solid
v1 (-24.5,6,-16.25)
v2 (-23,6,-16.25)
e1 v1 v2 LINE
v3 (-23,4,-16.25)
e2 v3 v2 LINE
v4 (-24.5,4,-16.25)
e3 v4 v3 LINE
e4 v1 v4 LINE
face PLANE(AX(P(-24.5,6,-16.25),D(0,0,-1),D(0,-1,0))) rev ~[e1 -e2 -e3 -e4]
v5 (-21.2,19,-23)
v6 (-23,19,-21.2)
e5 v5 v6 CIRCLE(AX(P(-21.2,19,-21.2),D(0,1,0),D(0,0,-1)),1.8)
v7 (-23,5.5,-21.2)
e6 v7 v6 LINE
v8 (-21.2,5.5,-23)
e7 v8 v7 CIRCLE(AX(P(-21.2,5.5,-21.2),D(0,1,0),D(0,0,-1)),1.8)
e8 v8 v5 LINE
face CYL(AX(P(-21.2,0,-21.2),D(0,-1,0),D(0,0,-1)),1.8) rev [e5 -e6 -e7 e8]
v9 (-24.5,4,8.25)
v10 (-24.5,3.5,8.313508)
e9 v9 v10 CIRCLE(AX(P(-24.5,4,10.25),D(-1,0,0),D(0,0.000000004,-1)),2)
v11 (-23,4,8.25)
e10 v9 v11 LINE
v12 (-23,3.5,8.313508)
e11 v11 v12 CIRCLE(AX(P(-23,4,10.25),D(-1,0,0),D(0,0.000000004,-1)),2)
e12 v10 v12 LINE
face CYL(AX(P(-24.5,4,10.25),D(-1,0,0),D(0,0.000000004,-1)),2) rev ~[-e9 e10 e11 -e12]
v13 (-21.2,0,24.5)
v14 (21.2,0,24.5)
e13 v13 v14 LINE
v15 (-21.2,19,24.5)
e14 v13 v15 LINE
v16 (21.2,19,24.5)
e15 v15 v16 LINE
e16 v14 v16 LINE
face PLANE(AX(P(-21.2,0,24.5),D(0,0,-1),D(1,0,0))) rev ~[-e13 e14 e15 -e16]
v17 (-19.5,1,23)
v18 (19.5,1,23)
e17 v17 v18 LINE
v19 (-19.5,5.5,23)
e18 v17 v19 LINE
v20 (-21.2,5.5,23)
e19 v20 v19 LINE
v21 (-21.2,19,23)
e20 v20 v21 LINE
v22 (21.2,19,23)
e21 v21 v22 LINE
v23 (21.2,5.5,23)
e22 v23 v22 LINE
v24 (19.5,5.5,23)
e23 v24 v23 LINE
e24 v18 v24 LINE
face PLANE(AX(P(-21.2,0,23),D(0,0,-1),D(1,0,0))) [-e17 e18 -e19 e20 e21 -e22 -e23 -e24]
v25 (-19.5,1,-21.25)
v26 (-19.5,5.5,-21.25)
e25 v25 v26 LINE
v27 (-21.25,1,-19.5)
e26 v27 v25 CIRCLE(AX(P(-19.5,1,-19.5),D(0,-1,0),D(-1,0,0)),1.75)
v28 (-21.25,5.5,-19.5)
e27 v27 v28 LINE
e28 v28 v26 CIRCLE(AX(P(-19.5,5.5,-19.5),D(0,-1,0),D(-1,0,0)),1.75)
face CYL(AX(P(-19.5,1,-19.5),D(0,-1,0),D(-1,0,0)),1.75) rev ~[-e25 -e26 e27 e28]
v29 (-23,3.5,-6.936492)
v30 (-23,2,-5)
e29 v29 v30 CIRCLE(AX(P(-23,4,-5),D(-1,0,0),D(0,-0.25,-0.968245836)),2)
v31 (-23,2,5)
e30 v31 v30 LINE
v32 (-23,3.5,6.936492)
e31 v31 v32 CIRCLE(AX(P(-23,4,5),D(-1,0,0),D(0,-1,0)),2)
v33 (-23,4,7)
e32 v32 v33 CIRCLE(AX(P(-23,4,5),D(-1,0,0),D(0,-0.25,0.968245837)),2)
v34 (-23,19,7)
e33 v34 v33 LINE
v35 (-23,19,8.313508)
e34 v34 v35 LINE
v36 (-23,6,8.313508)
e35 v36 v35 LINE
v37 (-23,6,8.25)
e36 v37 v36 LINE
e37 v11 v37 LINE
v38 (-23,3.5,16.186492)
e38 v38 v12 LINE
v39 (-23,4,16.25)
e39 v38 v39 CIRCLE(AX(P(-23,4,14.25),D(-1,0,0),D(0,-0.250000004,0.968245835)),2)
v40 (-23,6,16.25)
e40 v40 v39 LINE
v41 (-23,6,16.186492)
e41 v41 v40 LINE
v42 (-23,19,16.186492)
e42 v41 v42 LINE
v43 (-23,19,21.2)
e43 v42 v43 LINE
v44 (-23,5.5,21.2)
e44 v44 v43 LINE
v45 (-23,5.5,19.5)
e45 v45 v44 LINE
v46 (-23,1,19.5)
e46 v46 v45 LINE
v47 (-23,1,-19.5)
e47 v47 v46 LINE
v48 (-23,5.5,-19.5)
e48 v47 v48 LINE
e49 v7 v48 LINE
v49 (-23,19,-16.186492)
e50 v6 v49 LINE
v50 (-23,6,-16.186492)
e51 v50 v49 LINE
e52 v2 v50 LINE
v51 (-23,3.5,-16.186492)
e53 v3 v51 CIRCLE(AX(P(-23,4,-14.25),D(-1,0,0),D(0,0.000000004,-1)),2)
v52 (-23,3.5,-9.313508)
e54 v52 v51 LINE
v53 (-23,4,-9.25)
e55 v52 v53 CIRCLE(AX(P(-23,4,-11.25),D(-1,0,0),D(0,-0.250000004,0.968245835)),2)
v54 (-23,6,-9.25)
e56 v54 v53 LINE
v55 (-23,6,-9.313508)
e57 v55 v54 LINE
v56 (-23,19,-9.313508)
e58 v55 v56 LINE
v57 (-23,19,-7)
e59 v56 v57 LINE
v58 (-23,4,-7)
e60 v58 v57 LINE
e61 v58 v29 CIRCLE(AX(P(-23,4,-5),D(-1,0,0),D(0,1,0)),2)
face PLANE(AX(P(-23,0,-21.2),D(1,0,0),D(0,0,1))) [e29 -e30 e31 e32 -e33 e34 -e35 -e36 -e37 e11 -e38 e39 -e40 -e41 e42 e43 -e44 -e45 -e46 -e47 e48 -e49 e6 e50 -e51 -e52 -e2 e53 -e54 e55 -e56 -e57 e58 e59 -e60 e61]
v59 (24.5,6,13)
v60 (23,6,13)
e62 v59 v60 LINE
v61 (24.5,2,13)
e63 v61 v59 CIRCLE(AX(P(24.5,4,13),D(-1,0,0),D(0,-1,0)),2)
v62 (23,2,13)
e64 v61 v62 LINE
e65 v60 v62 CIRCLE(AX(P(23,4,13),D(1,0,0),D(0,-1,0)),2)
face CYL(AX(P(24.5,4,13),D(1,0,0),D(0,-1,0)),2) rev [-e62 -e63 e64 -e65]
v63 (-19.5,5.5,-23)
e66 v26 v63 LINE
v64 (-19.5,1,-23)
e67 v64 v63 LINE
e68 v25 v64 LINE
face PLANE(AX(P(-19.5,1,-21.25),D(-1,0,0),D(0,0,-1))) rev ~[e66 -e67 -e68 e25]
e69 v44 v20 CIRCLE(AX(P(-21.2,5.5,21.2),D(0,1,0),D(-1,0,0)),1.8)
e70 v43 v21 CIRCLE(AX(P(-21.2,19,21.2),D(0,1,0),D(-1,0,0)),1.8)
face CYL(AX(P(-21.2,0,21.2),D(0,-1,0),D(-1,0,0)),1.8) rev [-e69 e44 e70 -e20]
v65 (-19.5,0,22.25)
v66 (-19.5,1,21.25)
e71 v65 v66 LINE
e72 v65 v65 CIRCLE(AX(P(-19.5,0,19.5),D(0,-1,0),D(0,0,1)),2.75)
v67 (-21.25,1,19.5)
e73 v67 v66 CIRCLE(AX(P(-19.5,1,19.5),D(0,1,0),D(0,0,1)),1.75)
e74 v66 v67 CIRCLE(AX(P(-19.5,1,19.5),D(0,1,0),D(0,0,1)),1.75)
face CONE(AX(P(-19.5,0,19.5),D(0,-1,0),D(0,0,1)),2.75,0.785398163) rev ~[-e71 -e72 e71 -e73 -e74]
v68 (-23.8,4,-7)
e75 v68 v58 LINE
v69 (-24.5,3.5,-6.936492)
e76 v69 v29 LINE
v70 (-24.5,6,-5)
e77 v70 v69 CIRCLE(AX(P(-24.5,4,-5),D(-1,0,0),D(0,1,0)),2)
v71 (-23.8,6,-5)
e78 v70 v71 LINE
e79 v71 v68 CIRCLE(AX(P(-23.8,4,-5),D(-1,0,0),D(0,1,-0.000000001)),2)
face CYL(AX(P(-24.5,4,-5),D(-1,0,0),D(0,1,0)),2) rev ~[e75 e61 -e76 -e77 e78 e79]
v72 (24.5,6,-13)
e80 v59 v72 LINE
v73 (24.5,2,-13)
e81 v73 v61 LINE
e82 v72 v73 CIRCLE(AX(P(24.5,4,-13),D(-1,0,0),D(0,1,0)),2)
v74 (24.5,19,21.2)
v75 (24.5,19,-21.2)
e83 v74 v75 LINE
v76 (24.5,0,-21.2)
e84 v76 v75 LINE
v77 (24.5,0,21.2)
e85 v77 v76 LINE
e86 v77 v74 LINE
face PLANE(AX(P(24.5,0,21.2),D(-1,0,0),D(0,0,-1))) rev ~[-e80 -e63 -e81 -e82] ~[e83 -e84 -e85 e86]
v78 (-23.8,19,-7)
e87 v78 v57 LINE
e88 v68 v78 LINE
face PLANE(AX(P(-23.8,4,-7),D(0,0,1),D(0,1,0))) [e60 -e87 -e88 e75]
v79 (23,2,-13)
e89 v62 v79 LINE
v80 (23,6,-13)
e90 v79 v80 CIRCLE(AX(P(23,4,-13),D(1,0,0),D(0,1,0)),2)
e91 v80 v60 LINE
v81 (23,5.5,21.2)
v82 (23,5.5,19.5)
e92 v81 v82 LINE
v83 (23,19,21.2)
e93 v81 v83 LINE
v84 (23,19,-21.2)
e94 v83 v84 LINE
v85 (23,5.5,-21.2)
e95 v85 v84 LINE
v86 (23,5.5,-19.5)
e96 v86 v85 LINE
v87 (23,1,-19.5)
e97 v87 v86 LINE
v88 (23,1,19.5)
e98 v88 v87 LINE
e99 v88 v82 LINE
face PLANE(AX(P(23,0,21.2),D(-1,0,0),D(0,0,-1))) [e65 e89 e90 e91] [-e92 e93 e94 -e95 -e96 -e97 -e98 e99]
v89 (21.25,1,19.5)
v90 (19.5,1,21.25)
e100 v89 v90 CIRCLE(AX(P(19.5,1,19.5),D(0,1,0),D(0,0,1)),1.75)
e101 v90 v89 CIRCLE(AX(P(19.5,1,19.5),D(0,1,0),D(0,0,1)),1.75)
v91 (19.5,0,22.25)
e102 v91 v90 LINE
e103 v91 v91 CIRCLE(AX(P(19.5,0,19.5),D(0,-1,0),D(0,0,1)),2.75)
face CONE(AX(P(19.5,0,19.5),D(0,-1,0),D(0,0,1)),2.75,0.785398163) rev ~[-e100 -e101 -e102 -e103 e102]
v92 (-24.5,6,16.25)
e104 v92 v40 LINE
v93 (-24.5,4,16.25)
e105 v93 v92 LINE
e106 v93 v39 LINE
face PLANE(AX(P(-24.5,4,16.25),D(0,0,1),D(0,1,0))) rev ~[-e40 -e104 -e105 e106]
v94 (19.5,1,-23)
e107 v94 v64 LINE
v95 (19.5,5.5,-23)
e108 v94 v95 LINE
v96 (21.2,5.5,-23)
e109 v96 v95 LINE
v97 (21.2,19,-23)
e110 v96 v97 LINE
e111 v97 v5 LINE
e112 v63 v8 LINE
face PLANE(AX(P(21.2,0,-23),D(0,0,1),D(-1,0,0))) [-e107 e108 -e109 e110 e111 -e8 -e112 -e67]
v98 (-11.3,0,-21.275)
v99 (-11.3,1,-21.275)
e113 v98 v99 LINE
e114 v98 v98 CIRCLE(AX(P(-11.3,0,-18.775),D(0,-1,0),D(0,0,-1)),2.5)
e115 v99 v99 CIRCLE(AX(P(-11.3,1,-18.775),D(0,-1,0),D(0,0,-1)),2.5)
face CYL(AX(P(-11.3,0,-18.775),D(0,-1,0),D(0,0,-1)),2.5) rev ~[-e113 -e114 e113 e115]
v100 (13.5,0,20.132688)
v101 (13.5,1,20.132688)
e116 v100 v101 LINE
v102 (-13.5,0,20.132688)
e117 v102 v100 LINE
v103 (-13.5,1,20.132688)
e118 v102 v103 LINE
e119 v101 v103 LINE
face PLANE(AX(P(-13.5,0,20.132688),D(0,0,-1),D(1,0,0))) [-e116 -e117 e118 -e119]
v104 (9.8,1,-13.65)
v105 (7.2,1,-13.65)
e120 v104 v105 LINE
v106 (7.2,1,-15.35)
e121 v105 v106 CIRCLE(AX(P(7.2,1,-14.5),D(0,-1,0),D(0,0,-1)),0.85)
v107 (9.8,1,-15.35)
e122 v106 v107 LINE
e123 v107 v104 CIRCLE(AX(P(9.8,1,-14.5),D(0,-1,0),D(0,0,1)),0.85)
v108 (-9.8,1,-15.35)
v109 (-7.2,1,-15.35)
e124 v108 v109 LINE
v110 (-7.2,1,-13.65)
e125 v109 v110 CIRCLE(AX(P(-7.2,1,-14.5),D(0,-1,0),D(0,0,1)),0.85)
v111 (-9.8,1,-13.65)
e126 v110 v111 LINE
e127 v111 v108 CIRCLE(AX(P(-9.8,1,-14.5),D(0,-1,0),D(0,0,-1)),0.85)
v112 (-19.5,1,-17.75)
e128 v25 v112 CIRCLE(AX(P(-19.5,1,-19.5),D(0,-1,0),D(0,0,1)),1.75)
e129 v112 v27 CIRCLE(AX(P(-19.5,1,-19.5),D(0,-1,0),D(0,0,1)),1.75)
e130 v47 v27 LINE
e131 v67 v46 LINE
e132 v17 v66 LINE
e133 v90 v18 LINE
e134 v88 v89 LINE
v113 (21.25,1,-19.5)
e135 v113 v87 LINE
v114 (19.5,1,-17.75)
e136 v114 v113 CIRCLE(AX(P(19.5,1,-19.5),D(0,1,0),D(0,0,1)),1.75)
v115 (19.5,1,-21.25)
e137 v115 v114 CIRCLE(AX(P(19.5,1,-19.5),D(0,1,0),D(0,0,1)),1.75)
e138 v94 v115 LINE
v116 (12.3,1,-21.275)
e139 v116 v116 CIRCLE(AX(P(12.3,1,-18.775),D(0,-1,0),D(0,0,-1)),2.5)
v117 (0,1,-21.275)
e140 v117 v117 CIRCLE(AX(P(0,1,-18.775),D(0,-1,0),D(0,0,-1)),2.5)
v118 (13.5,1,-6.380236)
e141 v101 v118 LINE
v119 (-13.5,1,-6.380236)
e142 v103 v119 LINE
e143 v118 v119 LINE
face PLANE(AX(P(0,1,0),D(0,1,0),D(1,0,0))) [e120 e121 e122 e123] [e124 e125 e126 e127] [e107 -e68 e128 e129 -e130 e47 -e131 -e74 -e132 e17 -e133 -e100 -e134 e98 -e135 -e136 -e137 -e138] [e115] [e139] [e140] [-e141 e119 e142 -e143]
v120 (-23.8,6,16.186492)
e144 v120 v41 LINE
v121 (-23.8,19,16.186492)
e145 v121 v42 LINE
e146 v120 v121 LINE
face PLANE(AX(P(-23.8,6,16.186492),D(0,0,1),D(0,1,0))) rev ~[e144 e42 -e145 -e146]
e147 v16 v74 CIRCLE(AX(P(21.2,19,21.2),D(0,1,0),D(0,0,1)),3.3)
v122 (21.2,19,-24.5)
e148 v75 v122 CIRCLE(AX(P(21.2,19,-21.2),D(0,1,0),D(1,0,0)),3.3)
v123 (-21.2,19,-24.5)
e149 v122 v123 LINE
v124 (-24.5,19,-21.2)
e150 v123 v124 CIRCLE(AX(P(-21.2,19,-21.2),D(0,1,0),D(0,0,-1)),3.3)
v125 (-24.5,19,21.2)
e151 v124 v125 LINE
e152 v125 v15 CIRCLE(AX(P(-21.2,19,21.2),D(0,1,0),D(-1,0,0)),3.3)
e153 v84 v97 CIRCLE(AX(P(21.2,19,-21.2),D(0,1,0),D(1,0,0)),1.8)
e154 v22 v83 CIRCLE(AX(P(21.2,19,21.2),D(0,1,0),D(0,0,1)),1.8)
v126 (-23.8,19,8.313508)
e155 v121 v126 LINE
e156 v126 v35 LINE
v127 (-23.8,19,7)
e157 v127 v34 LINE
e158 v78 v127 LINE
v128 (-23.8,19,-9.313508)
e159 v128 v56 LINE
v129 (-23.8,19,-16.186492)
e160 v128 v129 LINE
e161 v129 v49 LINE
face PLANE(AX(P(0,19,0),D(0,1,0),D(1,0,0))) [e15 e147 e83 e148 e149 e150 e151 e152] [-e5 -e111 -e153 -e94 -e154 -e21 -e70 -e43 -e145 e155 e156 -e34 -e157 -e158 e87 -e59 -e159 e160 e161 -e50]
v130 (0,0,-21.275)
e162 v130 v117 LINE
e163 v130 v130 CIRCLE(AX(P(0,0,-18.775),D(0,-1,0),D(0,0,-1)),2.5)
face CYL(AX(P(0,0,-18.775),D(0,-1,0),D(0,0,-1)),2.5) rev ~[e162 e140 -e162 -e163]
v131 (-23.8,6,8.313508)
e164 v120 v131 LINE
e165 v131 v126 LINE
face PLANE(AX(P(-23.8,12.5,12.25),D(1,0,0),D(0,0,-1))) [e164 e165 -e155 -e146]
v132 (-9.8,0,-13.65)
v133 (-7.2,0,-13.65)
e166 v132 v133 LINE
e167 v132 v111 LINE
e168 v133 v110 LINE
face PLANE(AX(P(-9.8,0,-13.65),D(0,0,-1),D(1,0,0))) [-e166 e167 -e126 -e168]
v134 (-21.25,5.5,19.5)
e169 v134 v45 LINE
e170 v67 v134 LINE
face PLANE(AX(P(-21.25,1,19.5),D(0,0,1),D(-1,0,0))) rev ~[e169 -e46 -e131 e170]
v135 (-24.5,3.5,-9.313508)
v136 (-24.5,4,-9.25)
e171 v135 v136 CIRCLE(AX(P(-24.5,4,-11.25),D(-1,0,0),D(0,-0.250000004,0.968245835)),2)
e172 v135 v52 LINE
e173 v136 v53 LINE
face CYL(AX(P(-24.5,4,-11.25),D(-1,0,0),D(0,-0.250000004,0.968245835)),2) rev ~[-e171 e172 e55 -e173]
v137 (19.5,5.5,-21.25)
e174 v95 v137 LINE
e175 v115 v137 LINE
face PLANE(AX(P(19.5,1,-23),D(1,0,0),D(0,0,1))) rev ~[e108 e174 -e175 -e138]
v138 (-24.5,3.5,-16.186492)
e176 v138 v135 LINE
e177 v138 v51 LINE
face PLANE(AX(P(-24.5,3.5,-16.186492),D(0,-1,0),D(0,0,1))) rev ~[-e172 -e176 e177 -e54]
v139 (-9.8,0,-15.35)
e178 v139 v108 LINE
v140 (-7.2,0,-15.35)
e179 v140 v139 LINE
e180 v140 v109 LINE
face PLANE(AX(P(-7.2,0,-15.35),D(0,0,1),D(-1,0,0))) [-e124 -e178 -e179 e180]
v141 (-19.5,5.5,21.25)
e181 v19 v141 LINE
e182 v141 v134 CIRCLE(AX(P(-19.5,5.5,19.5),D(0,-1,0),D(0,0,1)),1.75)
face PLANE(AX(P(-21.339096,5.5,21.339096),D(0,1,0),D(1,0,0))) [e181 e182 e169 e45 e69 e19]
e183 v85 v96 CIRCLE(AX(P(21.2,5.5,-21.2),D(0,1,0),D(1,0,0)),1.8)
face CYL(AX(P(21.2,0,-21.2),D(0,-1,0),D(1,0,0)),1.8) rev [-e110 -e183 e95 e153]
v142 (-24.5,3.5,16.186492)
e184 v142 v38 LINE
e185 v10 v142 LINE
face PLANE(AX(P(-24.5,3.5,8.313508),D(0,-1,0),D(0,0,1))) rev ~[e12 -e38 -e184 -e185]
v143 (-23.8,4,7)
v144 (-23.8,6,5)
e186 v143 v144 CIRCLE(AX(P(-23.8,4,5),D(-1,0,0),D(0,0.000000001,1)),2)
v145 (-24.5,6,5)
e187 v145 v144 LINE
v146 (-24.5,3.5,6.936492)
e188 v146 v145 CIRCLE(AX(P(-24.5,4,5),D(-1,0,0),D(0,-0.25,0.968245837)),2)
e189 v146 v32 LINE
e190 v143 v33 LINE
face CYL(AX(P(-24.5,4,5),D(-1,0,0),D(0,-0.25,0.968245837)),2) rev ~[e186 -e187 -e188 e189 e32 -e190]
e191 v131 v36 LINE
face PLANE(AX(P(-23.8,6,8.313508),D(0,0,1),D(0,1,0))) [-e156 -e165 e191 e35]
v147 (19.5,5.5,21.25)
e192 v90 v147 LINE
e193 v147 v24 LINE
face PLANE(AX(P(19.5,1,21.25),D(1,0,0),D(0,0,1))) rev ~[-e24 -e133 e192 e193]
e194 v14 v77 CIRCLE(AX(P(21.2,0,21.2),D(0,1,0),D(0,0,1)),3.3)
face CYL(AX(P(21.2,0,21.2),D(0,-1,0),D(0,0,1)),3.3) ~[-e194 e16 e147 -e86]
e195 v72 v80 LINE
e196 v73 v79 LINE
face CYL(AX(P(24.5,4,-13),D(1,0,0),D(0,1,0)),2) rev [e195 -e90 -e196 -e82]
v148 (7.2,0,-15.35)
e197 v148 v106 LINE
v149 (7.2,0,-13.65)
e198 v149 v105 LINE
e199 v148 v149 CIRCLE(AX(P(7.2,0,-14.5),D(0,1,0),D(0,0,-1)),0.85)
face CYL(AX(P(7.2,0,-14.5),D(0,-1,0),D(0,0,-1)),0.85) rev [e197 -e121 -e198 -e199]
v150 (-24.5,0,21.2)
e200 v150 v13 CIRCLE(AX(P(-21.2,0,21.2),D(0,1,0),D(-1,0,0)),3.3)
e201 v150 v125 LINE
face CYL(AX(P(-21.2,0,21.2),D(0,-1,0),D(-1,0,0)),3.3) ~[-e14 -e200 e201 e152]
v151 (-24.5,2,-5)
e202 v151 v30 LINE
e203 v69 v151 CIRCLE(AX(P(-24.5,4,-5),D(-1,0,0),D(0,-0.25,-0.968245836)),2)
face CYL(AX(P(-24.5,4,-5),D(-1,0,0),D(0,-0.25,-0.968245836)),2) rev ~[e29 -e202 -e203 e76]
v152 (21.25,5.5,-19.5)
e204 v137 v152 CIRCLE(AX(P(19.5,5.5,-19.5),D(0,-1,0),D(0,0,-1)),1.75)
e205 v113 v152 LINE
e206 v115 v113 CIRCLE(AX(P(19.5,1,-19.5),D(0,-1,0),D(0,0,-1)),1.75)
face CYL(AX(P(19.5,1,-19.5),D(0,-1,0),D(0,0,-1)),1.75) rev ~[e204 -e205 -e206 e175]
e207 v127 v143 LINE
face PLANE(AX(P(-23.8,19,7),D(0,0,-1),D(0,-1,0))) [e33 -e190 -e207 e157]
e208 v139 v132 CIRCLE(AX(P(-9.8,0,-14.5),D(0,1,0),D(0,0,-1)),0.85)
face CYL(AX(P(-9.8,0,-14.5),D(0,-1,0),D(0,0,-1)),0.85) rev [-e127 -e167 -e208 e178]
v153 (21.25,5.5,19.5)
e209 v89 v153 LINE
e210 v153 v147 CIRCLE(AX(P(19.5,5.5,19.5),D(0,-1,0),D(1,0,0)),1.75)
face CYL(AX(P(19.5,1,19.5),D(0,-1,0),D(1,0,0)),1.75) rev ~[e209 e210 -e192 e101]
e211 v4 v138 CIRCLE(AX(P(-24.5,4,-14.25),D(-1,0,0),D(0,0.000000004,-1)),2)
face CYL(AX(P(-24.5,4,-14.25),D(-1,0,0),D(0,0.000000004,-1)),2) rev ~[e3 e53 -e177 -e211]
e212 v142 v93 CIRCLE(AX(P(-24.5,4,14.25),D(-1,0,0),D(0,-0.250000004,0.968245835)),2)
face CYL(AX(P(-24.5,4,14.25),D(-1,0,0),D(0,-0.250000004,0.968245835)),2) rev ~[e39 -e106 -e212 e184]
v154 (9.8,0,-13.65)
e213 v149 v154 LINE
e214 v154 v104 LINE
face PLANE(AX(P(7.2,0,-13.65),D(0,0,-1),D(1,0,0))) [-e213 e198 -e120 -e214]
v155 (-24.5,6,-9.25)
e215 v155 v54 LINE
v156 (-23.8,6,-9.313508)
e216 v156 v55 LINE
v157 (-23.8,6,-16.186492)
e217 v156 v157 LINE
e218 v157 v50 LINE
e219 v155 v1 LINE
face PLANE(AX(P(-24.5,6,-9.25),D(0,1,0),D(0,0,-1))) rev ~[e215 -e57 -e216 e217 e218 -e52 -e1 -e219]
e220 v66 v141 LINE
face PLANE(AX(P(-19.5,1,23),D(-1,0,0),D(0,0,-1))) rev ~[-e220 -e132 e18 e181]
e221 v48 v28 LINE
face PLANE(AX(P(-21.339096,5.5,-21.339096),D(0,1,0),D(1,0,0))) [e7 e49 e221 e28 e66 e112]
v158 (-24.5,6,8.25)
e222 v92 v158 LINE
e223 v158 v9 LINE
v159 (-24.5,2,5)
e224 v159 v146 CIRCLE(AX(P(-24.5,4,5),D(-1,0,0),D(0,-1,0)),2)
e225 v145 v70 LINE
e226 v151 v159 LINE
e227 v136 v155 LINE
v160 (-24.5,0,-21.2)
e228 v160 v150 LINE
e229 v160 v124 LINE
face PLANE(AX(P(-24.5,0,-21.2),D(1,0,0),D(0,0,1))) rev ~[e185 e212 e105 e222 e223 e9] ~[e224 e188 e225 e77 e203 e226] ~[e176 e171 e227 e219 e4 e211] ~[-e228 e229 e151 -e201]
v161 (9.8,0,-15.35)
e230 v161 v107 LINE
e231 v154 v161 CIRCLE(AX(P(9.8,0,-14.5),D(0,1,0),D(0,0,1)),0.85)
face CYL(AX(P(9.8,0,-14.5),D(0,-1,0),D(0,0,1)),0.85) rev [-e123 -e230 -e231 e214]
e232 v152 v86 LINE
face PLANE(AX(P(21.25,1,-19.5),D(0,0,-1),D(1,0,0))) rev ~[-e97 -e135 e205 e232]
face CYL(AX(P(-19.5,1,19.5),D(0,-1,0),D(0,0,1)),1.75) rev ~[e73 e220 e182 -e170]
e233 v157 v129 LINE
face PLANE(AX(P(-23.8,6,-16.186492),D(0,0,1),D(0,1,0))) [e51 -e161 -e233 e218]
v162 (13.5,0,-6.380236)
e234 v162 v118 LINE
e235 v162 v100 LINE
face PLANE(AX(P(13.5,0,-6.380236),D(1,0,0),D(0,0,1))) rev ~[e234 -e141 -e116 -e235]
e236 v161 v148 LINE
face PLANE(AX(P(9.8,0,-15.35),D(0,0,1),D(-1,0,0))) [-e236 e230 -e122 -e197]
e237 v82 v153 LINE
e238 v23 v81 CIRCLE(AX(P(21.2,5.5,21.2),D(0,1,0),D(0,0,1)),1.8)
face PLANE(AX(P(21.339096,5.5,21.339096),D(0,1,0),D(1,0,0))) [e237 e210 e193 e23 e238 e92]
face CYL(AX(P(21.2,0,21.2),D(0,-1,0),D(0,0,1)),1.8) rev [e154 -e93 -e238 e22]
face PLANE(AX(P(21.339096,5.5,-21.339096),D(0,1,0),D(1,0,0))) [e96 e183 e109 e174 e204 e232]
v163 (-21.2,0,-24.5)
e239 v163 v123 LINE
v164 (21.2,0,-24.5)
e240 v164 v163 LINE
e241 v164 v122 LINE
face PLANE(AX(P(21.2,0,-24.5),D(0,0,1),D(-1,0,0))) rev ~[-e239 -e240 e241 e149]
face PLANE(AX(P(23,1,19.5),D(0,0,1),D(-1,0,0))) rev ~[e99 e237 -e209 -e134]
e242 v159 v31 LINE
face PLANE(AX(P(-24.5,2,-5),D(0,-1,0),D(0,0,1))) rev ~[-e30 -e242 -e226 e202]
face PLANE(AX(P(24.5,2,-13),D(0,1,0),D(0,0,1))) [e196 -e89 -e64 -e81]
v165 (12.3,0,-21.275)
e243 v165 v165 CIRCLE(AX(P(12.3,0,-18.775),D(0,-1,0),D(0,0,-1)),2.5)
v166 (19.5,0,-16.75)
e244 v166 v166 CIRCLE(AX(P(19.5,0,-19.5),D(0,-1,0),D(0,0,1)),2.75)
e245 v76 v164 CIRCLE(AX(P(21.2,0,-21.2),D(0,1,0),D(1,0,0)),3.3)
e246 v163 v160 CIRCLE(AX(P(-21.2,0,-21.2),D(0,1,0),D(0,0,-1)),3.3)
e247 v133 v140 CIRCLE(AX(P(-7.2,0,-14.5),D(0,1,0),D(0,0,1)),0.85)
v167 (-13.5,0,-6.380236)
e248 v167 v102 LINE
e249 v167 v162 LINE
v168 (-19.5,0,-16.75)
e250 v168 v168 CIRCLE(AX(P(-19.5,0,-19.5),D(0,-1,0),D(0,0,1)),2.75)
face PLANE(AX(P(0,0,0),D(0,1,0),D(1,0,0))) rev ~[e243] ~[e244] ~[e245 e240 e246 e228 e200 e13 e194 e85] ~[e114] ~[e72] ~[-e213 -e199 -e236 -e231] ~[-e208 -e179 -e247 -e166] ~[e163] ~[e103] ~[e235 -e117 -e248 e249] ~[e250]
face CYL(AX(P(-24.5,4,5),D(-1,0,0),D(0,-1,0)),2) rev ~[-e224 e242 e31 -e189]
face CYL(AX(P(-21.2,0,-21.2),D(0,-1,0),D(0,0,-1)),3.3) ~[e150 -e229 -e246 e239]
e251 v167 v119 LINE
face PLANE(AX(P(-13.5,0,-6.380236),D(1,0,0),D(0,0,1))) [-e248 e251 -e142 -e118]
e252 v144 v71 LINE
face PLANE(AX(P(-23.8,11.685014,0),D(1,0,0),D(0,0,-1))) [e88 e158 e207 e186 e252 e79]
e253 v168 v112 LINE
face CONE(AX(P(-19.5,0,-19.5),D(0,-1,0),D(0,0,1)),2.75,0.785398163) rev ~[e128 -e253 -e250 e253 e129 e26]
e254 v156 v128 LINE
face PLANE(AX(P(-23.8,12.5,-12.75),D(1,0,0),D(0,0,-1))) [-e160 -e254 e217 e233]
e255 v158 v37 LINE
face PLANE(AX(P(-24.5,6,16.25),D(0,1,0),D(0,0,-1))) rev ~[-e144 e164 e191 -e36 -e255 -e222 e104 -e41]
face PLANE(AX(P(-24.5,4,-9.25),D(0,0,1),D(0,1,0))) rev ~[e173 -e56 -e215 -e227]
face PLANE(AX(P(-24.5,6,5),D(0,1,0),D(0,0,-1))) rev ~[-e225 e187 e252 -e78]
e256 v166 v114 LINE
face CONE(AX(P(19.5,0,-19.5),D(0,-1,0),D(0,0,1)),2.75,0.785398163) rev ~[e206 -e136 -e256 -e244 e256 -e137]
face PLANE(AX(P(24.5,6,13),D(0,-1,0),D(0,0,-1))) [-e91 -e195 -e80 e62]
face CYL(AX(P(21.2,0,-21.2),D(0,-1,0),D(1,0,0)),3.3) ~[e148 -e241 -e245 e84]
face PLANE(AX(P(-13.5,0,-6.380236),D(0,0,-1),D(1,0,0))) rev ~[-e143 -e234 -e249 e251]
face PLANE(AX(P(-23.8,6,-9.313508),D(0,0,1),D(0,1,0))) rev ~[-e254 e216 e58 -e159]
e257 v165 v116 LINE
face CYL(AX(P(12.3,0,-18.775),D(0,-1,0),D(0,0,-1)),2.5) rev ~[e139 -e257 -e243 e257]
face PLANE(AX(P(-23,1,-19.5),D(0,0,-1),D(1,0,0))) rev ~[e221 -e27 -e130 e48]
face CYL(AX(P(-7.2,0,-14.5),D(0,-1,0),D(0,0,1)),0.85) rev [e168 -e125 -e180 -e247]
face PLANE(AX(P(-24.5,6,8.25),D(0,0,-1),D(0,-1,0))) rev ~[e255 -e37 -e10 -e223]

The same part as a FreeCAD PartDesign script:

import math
import FreeCAD as App
import Part
import Sketcher
from FreeCAD import Vector

doc = App.newDocument("Part")
body = doc.addObject("PartDesign::Body", "Body")

sketch1 = body.newObject("Sketcher::SketchObject", "Sketch")
sketch1.AttachmentSupport = (doc.getObject("XZ_Plane"), [""])
sketch1.MapMode = "FlatFace"
sketch1.addGeometry([
    Part.LineSegment(Vector(-24.5, -21.2, 0), Vector(-24.5, 21.2, 0)),
    Part.ArcOfCircle(Part.Circle(Vector(-21.2, 21.2, 0), Vector(0, 0, 1), 3.3), math.radians(90), math.radians(180)),
    Part.LineSegment(Vector(-21.2, 24.5, 0), Vector(21.2, 24.5, 0)),
    Part.ArcOfCircle(Part.Circle(Vector(21.2, 21.2, 0), Vector(0, 0, 1), 3.3), math.radians(0), math.radians(90)),
    Part.LineSegment(Vector(24.5, 21.2, 0), Vector(24.5, -21.2, 0)),
    Part.ArcOfCircle(Part.Circle(Vector(21.2, -21.2, 0), Vector(0, 0, 1), 3.3), math.radians(-90), math.radians(0)),
    Part.LineSegment(Vector(21.2, -24.5, 0), Vector(-21.2, -24.5, 0)),
    Part.ArcOfCircle(Part.Circle(Vector(-21.2, -21.2, 0), Vector(0, 0, 1), 3.3), math.radians(180), math.radians(270)),
    Part.LineSegment(Vector(-23, 21.2, 0), Vector(-23, -21.2, 0)),
    Part.ArcOfCircle(Part.Circle(Vector(-21.2, -21.2, 0), Vector(0, 0, 1), 1.8), math.radians(180), math.radians(270)),
    Part.LineSegment(Vector(-21.2, -23, 0), Vector(21.2, -23, 0)),
    Part.ArcOfCircle(Part.Circle(Vector(21.2, -21.2, 0), Vector(0, 0, 1), 1.8), math.radians(-90), math.radians(0)),
    Part.LineSegment(Vector(23, -21.2, 0), Vector(23, 21.2, 0)),
    Part.ArcOfCircle(Part.Circle(Vector(21.2, 21.2, 0), Vector(0, 0, 1), 1.8), math.radians(0), math.radians(90)),
    Part.LineSegment(Vector(21.2, 23, 0), Vector(-21.2, 23, 0)),
    Part.ArcOfCircle(Part.Circle(Vector(-21.2, 21.2, 0), Vector(0, 0, 1), 1.8), math.radians(90), math.radians(180)),
], False)
sketch1.addConstraint([
    Sketcher.Constraint("Tangent", 0, 2, 1, 2),
    Sketcher.Constraint("Tangent", 1, 1, 2, 1),
    Sketcher.Constraint("Tangent", 2, 2, 3, 2),
    Sketcher.Constraint("Tangent", 3, 1, 4, 1),
    Sketcher.Constraint("Tangent", 4, 2, 5, 2),
    Sketcher.Constraint("Tangent", 5, 1, 6, 1),
    Sketcher.Constraint("Tangent", 6, 2, 7, 2),
    Sketcher.Constraint("Tangent", 7, 1, 0, 1),
    Sketcher.Constraint("Tangent", 8, 2, 9, 1),
    Sketcher.Constraint("Tangent", 9, 2, 10, 1),
    Sketcher.Constraint("Tangent", 10, 2, 11, 1),
    Sketcher.Constraint("Tangent", 11, 2, 12, 1),
    Sketcher.Constraint("Tangent", 12, 2, 13, 1),
    Sketcher.Constraint("Tangent", 13, 2, 14, 1),
    Sketcher.Constraint("Tangent", 14, 2, 15, 1),
    Sketcher.Constraint("Tangent", 15, 2, 8, 1),
    Sketcher.Constraint("Vertical", 0),
    Sketcher.Constraint("Horizontal", 2),
    Sketcher.Constraint("Vertical", 4),
    Sketcher.Constraint("Horizontal", 6),
    Sketcher.Constraint("Vertical", 8),
    Sketcher.Constraint("Horizontal", 10),
    Sketcher.Constraint("Vertical", 12),
    Sketcher.Constraint("Horizontal", 14),
    Sketcher.Constraint("Coincident", 9, 3, 7, 3),
    Sketcher.Constraint("Coincident", 11, 3, 5, 3),
    Sketcher.Constraint("Coincident", 13, 3, 3, 3),
    Sketcher.Constraint("Equal", 1, 3),
    Sketcher.Constraint("Equal", 3, 5),
    Sketcher.Constraint("Equal", 5, 7),
    Sketcher.Constraint("Equal", 13, 15),
    Sketcher.Constraint("Symmetric", 1, 3, 5, 3, -1, 1),
    Sketcher.Constraint("Equal", 14, 0),
    Sketcher.Constraint("Radius", 1, 3.3),
    Sketcher.Constraint("Radius", 9, 1.8),
    Sketcher.Constraint("DistanceX", 2, 1, 2, 2, 42.4),
])
pad1 = body.newObject("PartDesign::Pad", "Pad")
pad1.Profile = sketch1
pad1.Length = 19
pad1.Reversed = True

sketch2 = body.newObject("Sketcher::SketchObject", "Sketch001")
sketch2.AttachmentSupport = (doc.getObject("XZ_Plane"), [""])
sketch2.MapMode = "FlatFace"
sketch2.addGeometry([
    Part.LineSegment(Vector(-21.2, 23, 0), Vector(21.2, 23, 0)),
    Part.ArcOfCircle(Part.Circle(Vector(21.2, 21.2, 0), Vector(0, 0, 1), 1.8), math.radians(0), math.radians(90)),
    Part.LineSegment(Vector(23, 21.2, 0), Vector(23, -21.2, 0)),
    Part.ArcOfCircle(Part.Circle(Vector(21.2, -21.2, 0), Vector(0, 0, 1), 1.8), math.radians(-90), math.radians(0)),
    Part.LineSegment(Vector(21.2, -23, 0), Vector(-21.2, -23, 0)),
    Part.ArcOfCircle(Part.Circle(Vector(-21.2, -21.2, 0), Vector(0, 0, 1), 1.8), math.radians(180), math.radians(270)),
    Part.LineSegment(Vector(-23, -21.2, 0), Vector(-23, 21.2, 0)),
    Part.ArcOfCircle(Part.Circle(Vector(-21.2, 21.2, 0), Vector(0, 0, 1), 1.8), math.radians(90), math.radians(180)),
    Part.Circle(Vector(-19.5, 19.5, 0), Vector(0, 0, 1), 1.8),
    Part.Circle(Vector(19.5, 19.5, 0), Vector(0, 0, 1), 1.8),
    Part.Circle(Vector(-19.5, -19.5, 0), Vector(0, 0, 1), 1.8),
    Part.Circle(Vector(19.5, -19.5, 0), Vector(0, 0, 1), 1.8),
], False)
sketch2.addConstraint([
    Sketcher.Constraint("Tangent", 0, 2, 1, 2),
    Sketcher.Constraint("Tangent", 1, 1, 2, 1),
    Sketcher.Constraint("Tangent", 2, 2, 3, 2),
    Sketcher.Constraint("Tangent", 3, 1, 4, 1),
    Sketcher.Constraint("Tangent", 4, 2, 5, 2),
    Sketcher.Constraint("Tangent", 5, 1, 6, 1),
    Sketcher.Constraint("Tangent", 6, 2, 7, 2),
    Sketcher.Constraint("Tangent", 7, 1, 0, 1),
    Sketcher.Constraint("Horizontal", 0),
    Sketcher.Constraint("Vertical", 2),
    Sketcher.Constraint("Horizontal", 4),
    Sketcher.Constraint("Vertical", 6),
    Sketcher.Constraint("Equal", 1, 3),
    Sketcher.Constraint("Equal", 3, 5),
    Sketcher.Constraint("Equal", 5, 7),
    Sketcher.Constraint("Equal", 8, 9),
    Sketcher.Constraint("Equal", 9, 10),
    Sketcher.Constraint("Equal", 10, 11),
    Sketcher.Constraint("Symmetric", 1, 3, 5, 3, -1, 1),
    Sketcher.Constraint("Symmetric", 9, 3, 10, 3, -1, 1),
    Sketcher.Constraint("Symmetric", 8, 3, 11, 3, -1, 1),
    Sketcher.Constraint("Symmetric", 8, 3, 9, 3, -2),
    Sketcher.Constraint("Equal", 4, 2),
    Sketcher.Constraint("Diameter", 8, 3.5),
    Sketcher.Constraint("Radius", 1, 1.8),
    Sketcher.Constraint("DistanceX", 0, 1, 0, 2, 42.4),
    Sketcher.Constraint("DistanceX", 8, 3, 9, 3, 39.0),
    Sketcher.Constraint("DistanceY", 10, 3, 8, 3, 39.0),
])
pad2 = body.newObject("PartDesign::Pad", "Pad001")
pad2.Profile = sketch2
pad2.Length = 1
pad2.Reversed = True

sketch3 = body.newObject("Sketcher::SketchObject", "Sketch002")
sketch3.AttachmentSupport = (doc.getObject("XZ_Plane"), [""])
sketch3.MapMode = "FlatFace"
sketch3.addGeometry([
    Part.Circle(Vector(-19.5, 19.5, 0), Vector(0, 0, 1), 1.6),
    Part.Circle(Vector(19.5, 19.5, 0), Vector(0, 0, 1), 1.6),
    Part.Circle(Vector(19.5, -19.5, 0), Vector(0, 0, 1), 1.6),
    Part.Circle(Vector(-19.5, -19.5, 0), Vector(0, 0, 1), 1.6),
], False)
sketch3.addConstraint([
    Sketcher.Constraint("Equal", 0, 1),
    Sketcher.Constraint("Equal", 1, 2),
    Sketcher.Constraint("Equal", 2, 3),
    Sketcher.Constraint("Symmetric", 0, 3, 2, 3, -1, 1),
    Sketcher.Constraint("Symmetric", 1, 3, 3, 3, -1, 1),
    Sketcher.Constraint("Symmetric", 0, 3, 1, 3, -2),
    Sketcher.Constraint("Diameter", 0, 3.1),
    Sketcher.Constraint("DistanceX", 0, 3, 1, 3, 39.0),
    Sketcher.Constraint("DistanceY", 2, 3, 1, 3, 39.0),
])
doc.recompute()
hole = body.newObject("PartDesign::Hole", "Hole")
hole.Profile = sketch3
hole.ThreadType = "None"
hole.Diameter = 3.1
hole.DepthType = "Dimension"
hole.Depth = 10
hole.DrillPoint = "Angled"
hole.DrillPointAngle = 118
hole.HoleCutType = "Countersink"
hole.HoleCutDiameter = 5.5
hole.HoleCutCountersinkAngle = 90

sketch4 = body.newObject("Sketcher::SketchObject", "Sketch003")
sketch4.AttachmentSupport = (doc.getObject("XZ_Plane"), [""])
sketch4.MapMode = "FlatFace"
sketch4.addGeometry([
    Part.Circle(Vector(-11.3, -18.8, 0), Vector(0, 0, 1), 2.5),
    Part.Circle(Vector(0, -18.8, 0), Vector(0, 0, 1), 2.5),
    Part.Circle(Vector(12.3, -18.8, 0), Vector(0, 0, 1), 2.5),
    Part.Circle(Vector(-19.5, -19.5, 0), Vector(0, 0, 1), 1.8),
    Part.LineSegment(Vector(-13.5, 20.1, 0), Vector(-13.5, -6.4, 0)),
    Part.LineSegment(Vector(-13.5, -6.4, 0), Vector(13.5, -6.4, 0)),
    Part.LineSegment(Vector(13.5, -6.4, 0), Vector(13.5, 20.1, 0)),
    Part.LineSegment(Vector(13.5, 20.1, 0), Vector(-13.5, 20.1, 0)),
    Part.LineSegment(Vector(9.8, -13.7, 0), Vector(7.2, -13.7, 0)),
    Part.ArcOfCircle(Part.Circle(Vector(7.2, -14.5, 0), Vector(0, 0, 1), 0.8), math.radians(90), math.radians(270)),
    Part.LineSegment(Vector(7.2, -15.3, 0), Vector(9.8, -15.3, 0)),
    Part.ArcOfCircle(Part.Circle(Vector(9.8, -14.5, 0), Vector(0, 0, 1), 0.8), math.radians(-90), math.radians(90)),
    Part.LineSegment(Vector(-7.2, -13.7, 0), Vector(-9.8, -13.7, 0)),
    Part.ArcOfCircle(Part.Circle(Vector(-9.8, -14.5, 0), Vector(0, 0, 1), 0.8), math.radians(90), math.radians(270)),
    Part.LineSegment(Vector(-9.8, -15.3, 0), Vector(-7.2, -15.3, 0)),
    Part.ArcOfCircle(Part.Circle(Vector(-7.2, -14.5, 0), Vector(0, 0, 1), 0.8), math.radians(-90), math.radians(90)),
], False)
sketch4.addConstraint([
    Sketcher.Constraint("Coincident", 4, 2, 5, 1),
    Sketcher.Constraint("Coincident", 5, 2, 6, 1),
    Sketcher.Constraint("Coincident", 6, 2, 7, 1),
    Sketcher.Constraint("Coincident", 7, 2, 4, 1),
    Sketcher.Constraint("Tangent", 8, 2, 9, 1),
    Sketcher.Constraint("Tangent", 9, 2, 10, 1),
    Sketcher.Constraint("Tangent", 10, 2, 11, 1),
    Sketcher.Constraint("Tangent", 11, 2, 8, 1),
    Sketcher.Constraint("Tangent", 12, 2, 13, 1),
    Sketcher.Constraint("Tangent", 13, 2, 14, 1),
    Sketcher.Constraint("Tangent", 14, 2, 15, 1),
    Sketcher.Constraint("Tangent", 15, 2, 12, 1),
    Sketcher.Constraint("Vertical", 4),
    Sketcher.Constraint("Horizontal", 5),
    Sketcher.Constraint("Vertical", 6),
    Sketcher.Constraint("Horizontal", 7),
    Sketcher.Constraint("Horizontal", 8),
    Sketcher.Constraint("Horizontal", 10),
    Sketcher.Constraint("Horizontal", 12),
    Sketcher.Constraint("Horizontal", 14),
    Sketcher.Constraint("Equal", 0, 1),
    Sketcher.Constraint("Equal", 1, 2),
    Sketcher.Constraint("Equal", 11, 13),
    Sketcher.Constraint("Symmetric", 11, 3, 13, 3, -2),
    Sketcher.Constraint("PointOnObject", 1, 3, -2),
    Sketcher.Constraint("Horizontal", 0, 3, 1, 3),
    Sketcher.Constraint("Horizontal", 1, 3, 2, 3),
    Sketcher.Constraint("Equal", 10, 12),
    Sketcher.Constraint("Diameter", 0, 5.0),
    Sketcher.Constraint("Diameter", 3, 3.5),
    Sketcher.Constraint("DistanceX", 5, 1, 5, 2, 27.0),
    Sketcher.Constraint("Radius", 9, 0.85),
    Sketcher.Constraint("DistanceX", 8, 2, 8, 1, 2.6),
    Sketcher.Constraint("DistanceY", 3, 3, 9, 3, 5.0),
    Sketcher.Constraint("DistanceX", 13, 3, 9, 3, 17.0),
    Sketcher.Constraint("DistanceX", 3, 3, 4, 2, 6.0),
    Sketcher.Constraint("DistanceX", 0, 3, -1, 1, 11.3),
    Sketcher.Constraint("DistanceX", -1, 1, 2, 3, 12.3),
    Sketcher.Constraint("DistanceX", 3, 3, -1, 1, 19.5),
    Sketcher.Constraint("DistanceY", 3, 3, -1, 1, 19.5),
    Sketcher.Constraint("DistanceY", 0, 3, -1, 1, 18.775),
    Sketcher.Constraint("DistanceY", 4, 2, 4, 1, 26.512924),
    Sketcher.Constraint("DistanceY", 4, 2, -1, 1, 6.380236),
])
pocket1 = body.newObject("PartDesign::Pocket", "Pocket")
pocket1.Profile = sketch4
pocket1.Length = 143

sketch5 = body.newObject("Sketcher::SketchObject", "Sketch004")
sketch5.AttachmentSupport = (doc.getObject("YZ_Plane"), [""])
sketch5.MapMode = "FlatFace"
sketch5.AttachmentOffset = App.Placement(Vector(0, 0, -24.5), App.Rotation())
sketch5.addGeometry([
    Part.LineSegment(Vector(3.5, -16.2, 0), Vector(3.5, -9.3, 0)),
    Part.ArcOfCircle(Part.Circle(Vector(4, -11.2, 0), Vector(0, 0, 1), 2), math.radians(90), math.radians(104.48)),
    Part.LineSegment(Vector(4, -9.2, 0), Vector(6, -9.2, 0)),
    Part.LineSegment(Vector(6, -9.2, 0), Vector(6, -16.2, 0)),
    Part.LineSegment(Vector(6, -16.2, 0), Vector(4, -16.2, 0)),
    Part.ArcOfCircle(Part.Circle(Vector(4, -14.3, 0), Vector(0, 0, 1), 2), math.radians(-104.48), math.radians(-90)),
    Part.ArcOfCircle(Part.Circle(Vector(4, 5, 0), Vector(0, 0, 1), 2), math.radians(0), math.radians(104)),
    Part.LineSegment(Vector(6, 5, 0), Vector(6, -5, 0)),
    Part.ArcOfCircle(Part.Circle(Vector(4, -5, 0), Vector(0, 0, 1), 2), math.radians(-104), math.radians(0)),
    Part.ArcOfCircle(Part.Circle(Vector(4, -5, 0), Vector(0, 0, 1), 2), math.radians(-180), math.radians(-104)),
    Part.LineSegment(Vector(2, -5, 0), Vector(2, 5, 0)),
    Part.ArcOfCircle(Part.Circle(Vector(4, 5, 0), Vector(0, 0, 1), 2), math.radians(104), math.radians(180)),
    Part.LineSegment(Vector(3.5, 8.3, 0), Vector(3.5, 16.2, 0)),
    Part.ArcOfCircle(Part.Circle(Vector(4, 14.3, 0), Vector(0, 0, 1), 2), math.radians(90), math.radians(104.48)),
    Part.LineSegment(Vector(4, 16.2, 0), Vector(6, 16.2, 0)),
    Part.LineSegment(Vector(6, 16.2, 0), Vector(6, 8.2, 0)),
    Part.LineSegment(Vector(6, 8.2, 0), Vector(4, 8.2, 0)),
    Part.ArcOfCircle(Part.Circle(Vector(4, 10.2, 0), Vector(0, 0, 1), 2), math.radians(-104.48), math.radians(-90)),
], False)
sketch5.addConstraint([
    Sketcher.Constraint("Coincident", 0, 2, 1, 2),
    Sketcher.Constraint("Tangent", 1, 1, 2, 1),
    Sketcher.Constraint("Coincident", 2, 2, 3, 1),
    Sketcher.Constraint("Coincident", 3, 2, 4, 1),
    Sketcher.Constraint("Tangent", 4, 2, 5, 2),
    Sketcher.Constraint("Coincident", 5, 1, 0, 1),
    Sketcher.Constraint("Tangent", 6, 1, 7, 1),
    Sketcher.Constraint("Tangent", 7, 2, 8, 2),
    Sketcher.Constraint("Tangent", 8, 1, 9, 2),
    Sketcher.Constraint("Tangent", 9, 1, 10, 1),
    Sketcher.Constraint("Tangent", 10, 2, 11, 2),
    Sketcher.Constraint("Tangent", 11, 1, 6, 2),
    Sketcher.Constraint("Coincident", 12, 2, 13, 2),
    Sketcher.Constraint("Tangent", 13, 1, 14, 1),
    Sketcher.Constraint("Coincident", 14, 2, 15, 1),
    Sketcher.Constraint("Coincident", 15, 2, 16, 1),
    Sketcher.Constraint("Tangent", 16, 2, 17, 2),
    Sketcher.Constraint("Coincident", 17, 1, 12, 1),
    Sketcher.Constraint("Vertical", 0),
    Sketcher.Constraint("Horizontal", 2),
    Sketcher.Constraint("Vertical", 3),
    Sketcher.Constraint("Horizontal", 4),
    Sketcher.Constraint("Vertical", 7),
    Sketcher.Constraint("Vertical", 10),
    Sketcher.Constraint("Vertical", 12),
    Sketcher.Constraint("Horizontal", 14),
    Sketcher.Constraint("Vertical", 15),
    Sketcher.Constraint("Horizontal", 16),
    Sketcher.Constraint("Equal", 1, 5),
    Sketcher.Constraint("Equal", 5, 6),
    Sketcher.Constraint("Equal", 6, 8),
    Sketcher.Constraint("Equal", 8, 9),
    Sketcher.Constraint("Equal", 11, 13),
    Sketcher.Constraint("Equal", 13, 17),
    Sketcher.Constraint("Symmetric", 5, 3, 13, 3, -1),
    Sketcher.Constraint("Symmetric", 8, 1, 11, 1, -1),
    Sketcher.Constraint("Vertical", 1, 3, 5, 3),
    Sketcher.Constraint("Vertical", 5, 3, 6, 3),
    Sketcher.Constraint("Vertical", 13, 3, 17, 3),
    Sketcher.Constraint("Vertical", 3, 2, 6, 1),
    Sketcher.Constraint("Vertical", 5, 1, 8, 1),
    Sketcher.Constraint("Vertical", 11, 1, 12, 2),
    Sketcher.Constraint("Vertical", 7, 2, 14, 2),
    Sketcher.Constraint("Radius", 1, 2.0),
    Sketcher.Constraint("DistanceY", 3, 2, 3, 1, 7.0),
    Sketcher.Constraint("DistanceY", 7, 2, 7, 1, 10.0),
    Sketcher.Constraint("DistanceY", 15, 2, 15, 1, 8.0),
    Sketcher.Constraint("DistanceX", -1, 1, 1, 3, 4.0),
    Sketcher.Constraint("DistanceX", -1, 1, 0, 2, 3.5),
    Sketcher.Constraint("DistanceY", 1, 3, 13, 3, 25.5),
])
pocket2 = body.newObject("PartDesign::Pocket", "Pocket001")
pocket2.Profile = sketch5
pocket2.Length = 21
pocket2.Reversed = True

sketch6 = body.newObject("Sketcher::SketchObject", "Sketch005")
sketch6.AttachmentSupport = (doc.getObject("YZ_Plane"), [""])
sketch6.MapMode = "FlatFace"
sketch6.AttachmentOffset = App.Placement(Vector(0, 0, 24.5), App.Rotation())
sketch6.addGeometry([
    Part.LineSegment(Vector(6, -13, 0), Vector(6, 13, 0)),
    Part.ArcOfCircle(Part.Circle(Vector(4, 13, 0), Vector(0, 0, 1), 2), math.radians(0), math.radians(180)),
    Part.LineSegment(Vector(2, 13, 0), Vector(2, -13, 0)),
    Part.ArcOfCircle(Part.Circle(Vector(4, -13, 0), Vector(0, 0, 1), 2), math.radians(180), math.radians(360)),
], False)
sketch6.addConstraint([
    Sketcher.Constraint("Tangent", 0, 2, 1, 1),
    Sketcher.Constraint("Tangent", 1, 2, 2, 1),
    Sketcher.Constraint("Tangent", 2, 2, 3, 1),
    Sketcher.Constraint("Tangent", 3, 2, 0, 1),
    Sketcher.Constraint("Vertical", 0),
    Sketcher.Constraint("Vertical", 2),
    Sketcher.Constraint("Radius", 1, 2.0),
    Sketcher.Constraint("DistanceY", 0, 1, 0, 2, 26.0),
    Sketcher.Constraint("DistanceX", -1, 1, 1, 3, 4.0),
    Sketcher.Constraint("DistanceY", -1, 1, 1, 3, 13.0),
])
pocket3 = body.newObject("PartDesign::Pocket", "Pocket002")
pocket3.Profile = sketch6
pocket3.Length = 27

sketch7 = body.newObject("Sketcher::SketchObject", "Sketch006")
sketch7.AttachmentSupport = (doc.getObject("XZ_Plane"), [""])
sketch7.MapMode = "FlatFace"
sketch7.AttachmentOffset = App.Placement(Vector(0, 0, -1), App.Rotation())
sketch7.addGeometry([
    Part.LineSegment(Vector(-23, -19.5, 0), Vector(-21.2, -19.5, 0)),
    Part.ArcOfCircle(Part.Circle(Vector(-19.5, -19.5, 0), Vector(0, 0, 1), 1.8), math.radians(180), math.radians(270)),
    Part.LineSegment(Vector(-19.5, -21.2, 0), Vector(-19.5, -23, 0)),
    Part.LineSegment(Vector(-19.5, -23, 0), Vector(-21.2, -23, 0)),
    Part.ArcOfCircle(Part.Circle(Vector(-21.2, -21.2, 0), Vector(0, 0, 1), 1.8), math.radians(180), math.radians(270)),
    Part.LineSegment(Vector(-23, -21.2, 0), Vector(-23, -19.5, 0)),
    Part.LineSegment(Vector(-21.2, 19.5, 0), Vector(-23, 19.5, 0)),
    Part.LineSegment(Vector(-23, 19.5, 0), Vector(-23, 21.2, 0)),
    Part.ArcOfCircle(Part.Circle(Vector(-21.2, 21.2, 0), Vector(0, 0, 1), 1.8), math.radians(90), math.radians(180)),
    Part.LineSegment(Vector(-21.2, 23, 0), Vector(-19.5, 23, 0)),
    Part.LineSegment(Vector(-19.5, 23, 0), Vector(-19.5, 21.2, 0)),
    Part.ArcOfCircle(Part.Circle(Vector(-19.5, 19.5, 0), Vector(0, 0, 1), 1.8), math.radians(90), math.radians(180)),
    Part.LineSegment(Vector(19.5, 21.2, 0), Vector(19.5, 23, 0)),
    Part.LineSegment(Vector(19.5, 23, 0), Vector(21.2, 23, 0)),
    Part.ArcOfCircle(Part.Circle(Vector(21.2, 21.2, 0), Vector(0, 0, 1), 1.8), math.radians(0), math.radians(90)),
    Part.LineSegment(Vector(23, 21.2, 0), Vector(23, 19.5, 0)),
    Part.LineSegment(Vector(23, 19.5, 0), Vector(21.2, 19.5, 0)),
    Part.ArcOfCircle(Part.Circle(Vector(19.5, 19.5, 0), Vector(0, 0, 1), 1.8), math.radians(0), math.radians(90)),
    Part.LineSegment(Vector(21.2, -23, 0), Vector(19.5, -23, 0)),
    Part.LineSegment(Vector(19.5, -23, 0), Vector(19.5, -21.2, 0)),
    Part.ArcOfCircle(Part.Circle(Vector(19.5, -19.5, 0), Vector(0, 0, 1), 1.8), math.radians(-90), math.radians(0)),
    Part.LineSegment(Vector(21.2, -19.5, 0), Vector(23, -19.5, 0)),
    Part.LineSegment(Vector(23, -19.5, 0), Vector(23, -21.2, 0)),
    Part.ArcOfCircle(Part.Circle(Vector(21.2, -21.2, 0), Vector(0, 0, 1), 1.8), math.radians(-90), math.radians(0)),
], False)
sketch7.addConstraint([
    Sketcher.Constraint("Coincident", 0, 2, 1, 1),
    Sketcher.Constraint("Coincident", 1, 2, 2, 1),
    Sketcher.Constraint("Coincident", 2, 2, 3, 1),
    Sketcher.Constraint("Tangent", 3, 2, 4, 2),
    Sketcher.Constraint("Tangent", 4, 1, 5, 1),
    Sketcher.Constraint("Coincident", 5, 2, 0, 1),
    Sketcher.Constraint("Coincident", 6, 2, 7, 1),
    Sketcher.Constraint("Tangent", 7, 2, 8, 2),
    Sketcher.Constraint("Tangent", 8, 1, 9, 1),
    Sketcher.Constraint("Coincident", 9, 2, 10, 1),
    Sketcher.Constraint("Coincident", 10, 2, 11, 1),
    Sketcher.Constraint("Coincident", 11, 2, 6, 1),
    Sketcher.Constraint("Coincident", 12, 2, 13, 1),
    Sketcher.Constraint("Tangent", 13, 2, 14, 2),
    Sketcher.Constraint("Tangent", 14, 1, 15, 1),
    Sketcher.Constraint("Coincident", 15, 2, 16, 1),
    Sketcher.Constraint("Coincident", 16, 2, 17, 1),
    Sketcher.Constraint("Coincident", 17, 2, 12, 1),
    Sketcher.Constraint("Coincident", 18, 2, 19, 1),
    Sketcher.Constraint("Coincident", 19, 2, 20, 1),
    Sketcher.Constraint("Coincident", 20, 2, 21, 1),
    Sketcher.Constraint("Coincident", 21, 2, 22, 1),
    Sketcher.Constraint("Tangent", 22, 2, 23, 2),
    Sketcher.Constraint("Tangent", 23, 1, 18, 1),
    Sketcher.Constraint("Horizontal", 0),
    Sketcher.Constraint("Vertical", 2),
    Sketcher.Constraint("Horizontal", 3),
    Sketcher.Constraint("Vertical", 5),
    Sketcher.Constraint("Horizontal", 6),
    Sketcher.Constraint("Vertical", 7),
    Sketcher.Constraint("Horizontal", 9),
    Sketcher.Constraint("Vertical", 10),
    Sketcher.Constraint("Vertical", 12),
    Sketcher.Constraint("Horizontal", 13),
    Sketcher.Constraint("Vertical", 15),
    Sketcher.Constraint("Horizontal", 16),
    Sketcher.Constraint("Horizontal", 18),
    Sketcher.Constraint("Vertical", 19),
    Sketcher.Constraint("Horizontal", 21),
    Sketcher.Constraint("Vertical", 22),
    Sketcher.Constraint("Equal", 4, 8),
    Sketcher.Constraint("Equal", 1, 11),
    Sketcher.Constraint("Equal", 8, 14),
    Sketcher.Constraint("Equal", 11, 17),
    Sketcher.Constraint("Equal", 17, 20),
    Sketcher.Constraint("Equal", 14, 23),
    Sketcher.Constraint("Symmetric", 4, 3, 14, 3, -1, 1),
    Sketcher.Constraint("Symmetric", 1, 3, 17, 3, -1, 1),
    Sketcher.Constraint("Symmetric", 11, 3, 20, 3, -1, 1),
    Sketcher.Constraint("Symmetric", 8, 3, 23, 3, -1, 1),
    Sketcher.Constraint("Symmetric", 8, 3, 14, 3, -2),
    Sketcher.Constraint("Symmetric", 11, 3, 17, 3, -2),
    Sketcher.Constraint("Horizontal", 20, 3, 0, 2),
    Sketcher.Constraint("Horizontal", 17, 3, 6, 2),
    Sketcher.Constraint("Horizontal", 11, 2, 15, 2),
    Sketcher.Constraint("Horizontal", 5, 2, 20, 2),
    Sketcher.Constraint("Vertical", 11, 3, 1, 2),
    Sketcher.Constraint("Vertical", 2, 2, 9, 2),
    Sketcher.Constraint("Vertical", 20, 3, 12, 2),
    Sketcher.Constraint("Vertical", 17, 2, 18, 2),
    Sketcher.Constraint("Equal", 21, 2),
    Sketcher.Constraint("Radius", 4, 1.8),
    Sketcher.Constraint("Radius", 1, 1.75),
    Sketcher.Constraint("DistanceX", 3, 2, 3, 1, 1.7),
    Sketcher.Constraint("DistanceY", 2, 2, -1, 1, 23.0),
    Sketcher.Constraint("DistanceX", 4, 1, -1, 1, 23.0),
])
pad3 = body.newObject("PartDesign::Pad", "Pad002")
pad3.Profile = sketch7
pad3.Length = 4.5
pad3.Reversed = True

sketch8 = body.newObject("Sketcher::SketchObject", "Sketch007")
sketch8.AttachmentSupport = (doc.getObject("YZ_Plane"), [""])
sketch8.MapMode = "FlatFace"
sketch8.AttachmentOffset = App.Placement(Vector(0, 0, -23.8), App.Rotation())
sketch8.addGeometry([
    Part.LineSegment(Vector(19, 7, 0), Vector(4, 7, 0)),
    Part.ArcOfCircle(Part.Circle(Vector(4, 5, 0), Vector(0, 0, 1), 2), math.radians(0), math.radians(90)),
    Part.LineSegment(Vector(6, 5, 0), Vector(6, -5, 0)),
    Part.ArcOfCircle(Part.Circle(Vector(4, -5, 0), Vector(0, 0, 1), 2), math.radians(-90), math.radians(0)),
    Part.LineSegment(Vector(4, -7, 0), Vector(19, -7, 0)),
    Part.LineSegment(Vector(19, -7, 0), Vector(19, 7, 0)),
    Part.LineSegment(Vector(19, 16.2, 0), Vector(6, 16.2, 0)),
    Part.LineSegment(Vector(6, 16.2, 0), Vector(6, 8.3, 0)),
    Part.LineSegment(Vector(6, 8.3, 0), Vector(19, 8.3, 0)),
    Part.LineSegment(Vector(19, 8.3, 0), Vector(19, 16.2, 0)),
    Part.LineSegment(Vector(19, -9.3, 0), Vector(6, -9.3, 0)),
    Part.LineSegment(Vector(6, -9.3, 0), Vector(6, -16.2, 0)),
    Part.LineSegment(Vector(6, -16.2, 0), Vector(19, -16.2, 0)),
    Part.LineSegment(Vector(19, -16.2, 0), Vector(19, -9.3, 0)),
], False)
sketch8.addConstraint([
    Sketcher.Constraint("Tangent", 0, 2, 1, 2),
    Sketcher.Constraint("Tangent", 1, 1, 2, 1),
    Sketcher.Constraint("Tangent", 2, 2, 3, 2),
    Sketcher.Constraint("Tangent", 3, 1, 4, 1),
    Sketcher.Constraint("Coincident", 4, 2, 5, 1),
    Sketcher.Constraint("Coincident", 5, 2, 0, 1),
    Sketcher.Constraint("Coincident", 6, 2, 7, 1),
    Sketcher.Constraint("Coincident", 7, 2, 8, 1),
    Sketcher.Constraint("Coincident", 8, 2, 9, 1),
    Sketcher.Constraint("Coincident", 9, 2, 6, 1),
    Sketcher.Constraint("Coincident", 10, 2, 11, 1),
    Sketcher.Constraint("Coincident", 11, 2, 12, 1),
    Sketcher.Constraint("Coincident", 12, 2, 13, 1),
    Sketcher.Constraint("Coincident", 13, 2, 10, 1),
    Sketcher.Constraint("Horizontal", 0),
    Sketcher.Constraint("Vertical", 2),
    Sketcher.Constraint("Horizontal", 4),
    Sketcher.Constraint("Vertical", 5),
    Sketcher.Constraint("Horizontal", 6),
    Sketcher.Constraint("Vertical", 7),
    Sketcher.Constraint("Horizontal", 8),
    Sketcher.Constraint("Vertical", 9),
    Sketcher.Constraint("Horizontal", 10),
    Sketcher.Constraint("Vertical", 11),
    Sketcher.Constraint("Horizontal", 12),
    Sketcher.Constraint("Vertical", 13),
    Sketcher.Constraint("Equal", 1, 3),
    Sketcher.Constraint("Symmetric", 6, 2, 11, 2, -1),
    Sketcher.Constraint("Vertical", 2, 2, 6, 2),
    Sketcher.Constraint("Vertical", 5, 2, 8, 2),
    Sketcher.Constraint("Vertical", 9, 2, 12, 2),
    Sketcher.Constraint("Radius", 1, 2.0),
    Sketcher.Constraint("DistanceX", 0, 2, 0, 1, 15.0),
    Sketcher.Constraint("DistanceY", 2, 2, 2, 1, 10.0),
    Sketcher.Constraint("DistanceX", -1, 1, 1, 3, 4.0),
    Sketcher.Constraint("DistanceY", -1, 1, 1, 3, 5.0),
    Sketcher.Constraint("DistanceY", 7, 2, 7, 1, 7.872983),
    Sketcher.Constraint("DistanceY", 11, 2, 11, 1, 6.872983),
    Sketcher.Constraint("DistanceY", -1, 1, 6, 2, 16.186492),
])
pocket4 = body.newObject("PartDesign::Pocket", "Pocket003")
pocket4.Profile = sketch8
pocket4.Length = 0.8
pocket4.Reversed = True

doc.recompute()
